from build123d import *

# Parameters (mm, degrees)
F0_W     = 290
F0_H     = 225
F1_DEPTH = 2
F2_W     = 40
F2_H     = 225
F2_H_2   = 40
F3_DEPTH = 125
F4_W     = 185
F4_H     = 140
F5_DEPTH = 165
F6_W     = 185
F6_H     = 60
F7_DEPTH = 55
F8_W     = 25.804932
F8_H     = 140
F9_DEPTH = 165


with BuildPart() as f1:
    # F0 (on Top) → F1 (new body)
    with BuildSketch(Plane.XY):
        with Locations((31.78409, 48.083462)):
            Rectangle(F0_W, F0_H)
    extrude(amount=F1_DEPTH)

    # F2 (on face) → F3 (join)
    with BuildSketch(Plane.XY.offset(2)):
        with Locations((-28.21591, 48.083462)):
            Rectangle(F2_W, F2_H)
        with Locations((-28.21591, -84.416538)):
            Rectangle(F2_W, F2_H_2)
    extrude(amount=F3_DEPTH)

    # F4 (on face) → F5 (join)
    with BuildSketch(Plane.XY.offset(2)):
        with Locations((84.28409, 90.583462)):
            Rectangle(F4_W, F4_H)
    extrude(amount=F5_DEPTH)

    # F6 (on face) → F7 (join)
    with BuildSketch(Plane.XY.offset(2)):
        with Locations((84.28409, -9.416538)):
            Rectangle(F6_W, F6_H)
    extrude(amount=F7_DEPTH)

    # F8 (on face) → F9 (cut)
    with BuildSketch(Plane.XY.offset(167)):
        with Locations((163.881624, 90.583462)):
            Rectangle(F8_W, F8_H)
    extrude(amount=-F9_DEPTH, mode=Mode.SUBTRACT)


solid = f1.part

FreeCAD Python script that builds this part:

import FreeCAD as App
import Part
import Sketcher
from FreeCAD import Vector

doc = App.newDocument("Part")
body = doc.addObject("PartDesign::Body", "Body")

# Sketch on XY plane
sketch1 = doc.addObject("Sketcher::SketchObject", "Sketch")
body.addObject(sketch1)
sketch1.AttachmentSupport = (doc.XY_Plane, [""])
sketch1.MapMode = "FlatFace"
sketch1.addGeometry([
    Part.LineSegment(Vector(-113.21591, 160.583462, 0), Vector(-113.21591, -64.416538, 0)),
    Part.LineSegment(Vector(-113.21591, -64.416538, 0), Vector(176.78409, -64.416538, 0)),
    Part.LineSegment(Vector(176.78409, -64.416538, 0), Vector(176.78409, 160.583462, 0)),
    Part.LineSegment(Vector(176.78409, 160.583462, 0), Vector(-113.21591, 160.583462, 0)),
], False)
sketch1.addConstraint([
    Sketcher.Constraint("Coincident", 0, 2, 1, 1),
    Sketcher.Constraint("Coincident", 1, 2, 2, 1),
    Sketcher.Constraint("Coincident", 2, 2, 3, 1),
    Sketcher.Constraint("Coincident", 3, 2, 0, 1),
    Sketcher.Constraint("Vertical", 0),
    Sketcher.Constraint("Horizontal", 1),
    Sketcher.Constraint("Vertical", 2),
    Sketcher.Constraint("Horizontal", 3),
    Sketcher.Constraint("DistanceX", 1, 1, 1, 2, 290.0),
    Sketcher.Constraint("DistanceY", 0, 2, 0, 1, 225.0),
    Sketcher.Constraint("DistanceX", 0, 2, -1, 1, 113.21591),
    Sketcher.Constraint("DistanceY", 0, 2, -1, 1, 64.416538),
])
pad1 = doc.addObject("PartDesign::Pad", "Pad")
body.addObject(pad1)
pad1.Profile = sketch1
pad1.Length = 2

# Sketch on XY plane
sketch2 = doc.addObject("Sketcher::SketchObject", "Sketch001")
body.addObject(sketch2)
sketch2.AttachmentSupport = (doc.XY_Plane, [""])
sketch2.MapMode = "FlatFace"
sketch2.AttachmentOffset = App.Placement(Vector(0, 0, 2), App.Rotation())
sketch2.addGeometry([
    Part.LineSegment(Vector(-48.21591, 160.583462, 0), Vector(-48.21591, -104.416538, 0)),
    Part.LineSegment(Vector(-48.21591, -104.416538, 0), Vector(-8.21591, -104.416538, 0)),
    Part.LineSegment(Vector(-8.21591, -104.416538, 0), Vector(-8.21591, 160.583462, 0)),
    Part.LineSegment(Vector(-8.21591, 160.583462, 0), Vector(-48.21591, 160.583462, 0)),
], False)
sketch2.addConstraint([
    Sketcher.Constraint("Coincident", 0, 2, 1, 1),
    Sketcher.Constraint("Coincident", 1, 2, 2, 1),
    Sketcher.Constraint("Coincident", 2, 2, 3, 1),
    Sketcher.Constraint("Coincident", 3, 2, 0, 1),
    Sketcher.Constraint("Vertical", 0),
    Sketcher.Constraint("Horizontal", 1),
    Sketcher.Constraint("Vertical", 2),
    Sketcher.Constraint("Horizontal", 3),
    Sketcher.Constraint("DistanceX", 1, 1, 1, 2, 40.0),
    Sketcher.Constraint("DistanceY", 0, 2, 0, 1, 265.0),
    Sketcher.Constraint("DistanceX", 0, 2, -1, 1, 48.21591),
    Sketcher.Constraint("DistanceY", 0, 2, -1, 1, 104.416538),
])
pad2 = doc.addObject("PartDesign::Pad", "Pad001")
body.addObject(pad2)
pad2.Profile = sketch2
pad2.Length = 125

# Sketch on XY plane
sketch3 = doc.addObject("Sketcher::SketchObject", "Sketch002")
body.addObject(sketch3)
sketch3.AttachmentSupport = (doc.XY_Plane, [""])
sketch3.MapMode = "FlatFace"
sketch3.AttachmentOffset = App.Placement(Vector(0, 0, 2), App.Rotation())
sketch3.addGeometry([
    Part.LineSegment(Vector(-8.21591, 160.583462, 0), Vector(-8.21591, 20.583462, 0)),
    Part.LineSegment(Vector(-8.21591, 20.583462, 0), Vector(176.78409, 20.583462, 0)),
    Part.LineSegment(Vector(176.78409, 20.583462, 0), Vector(176.78409, 160.583462, 0)),
    Part.LineSegment(Vector(176.78409, 160.583462, 0), Vector(-8.21591, 160.583462, 0)),
], False)
sketch3.addConstraint([
    Sketcher.Constraint("Coincident", 0, 2, 1, 1),
    Sketcher.Constraint("Coincident", 1, 2, 2, 1),
    Sketcher.Constraint("Coincident", 2, 2, 3, 1),
    Sketcher.Constraint("Coincident", 3, 2, 0, 1),
    Sketcher.Constraint("Vertical", 0),
    Sketcher.Constraint("Horizontal", 1),
    Sketcher.Constraint("Vertical", 2),
    Sketcher.Constraint("Horizontal", 3),
    Sketcher.Constraint("DistanceX", 1, 1, 1, 2, 185.0),
    Sketcher.Constraint("DistanceY", 0, 2, 0, 1, 140.0),
    Sketcher.Constraint("DistanceX", 0, 2, -1, 1, 8.21591),
    Sketcher.Constraint("DistanceY", -1, 1, 2, 2, 160.583462),
])
pad3 = doc.addObject("PartDesign::Pad", "Pad002")
body.addObject(pad3)
pad3.Profile = sketch3
pad3.Length = 165

# Sketch on XY plane
sketch4 = doc.addObject("Sketcher::SketchObject", "Sketch003")
body.addObject(sketch4)
sketch4.AttachmentSupport = (doc.XY_Plane, [""])
sketch4.MapMode = "FlatFace"
sketch4.AttachmentOffset = App.Placement(Vector(0, 0, 2), App.Rotation())
sketch4.addGeometry([
    Part.LineSegment(Vector(-8.21591, 20.583462, 0), Vector(-8.21591, -39.416538, 0)),
    Part.LineSegment(Vector(-8.21591, -39.416538, 0), Vector(176.78409, -39.416538, 0)),
    Part.LineSegment(Vector(176.78409, -39.416538, 0), Vector(176.78409, 20.583462, 0)),
    Part.LineSegment(Vector(176.78409, 20.583462, 0), Vector(-8.21591, 20.583462, 0)),
], False)
sketch4.addConstraint([
    Sketcher.Constraint("Coincident", 0, 2, 1, 1),
    Sketcher.Constraint("Coincident", 1, 2, 2, 1),
    Sketcher.Constraint("Coincident", 2, 2, 3, 1),
    Sketcher.Constraint("Coincident", 3, 2, 0, 1),
    Sketcher.Constraint("Vertical", 0),
    Sketcher.Constraint("Horizontal", 1),
    Sketcher.Constraint("Vertical", 2),
    Sketcher.Constraint("Horizontal", 3),
    Sketcher.Constraint("DistanceX", 1, 1, 1, 2, 185.0),
    Sketcher.Constraint("DistanceY", 0, 2, 0, 1, 60.0),
    Sketcher.Constraint("DistanceX", 0, 2, -1, 1, 8.21591),
    Sketcher.Constraint("DistanceY", 0, 2, -1, 1, 39.416538),
])
pad4 = doc.addObject("PartDesign::Pad", "Pad003")
body.addObject(pad4)
pad4.Profile = sketch4
pad4.Length = 55

# Sketch on XY plane
sketch5 = doc.addObject("Sketcher::SketchObject", "Sketch004")
body.addObject(sketch5)
sketch5.AttachmentSupport = (doc.XY_Plane, [""])
sketch5.MapMode = "FlatFace"
sketch5.AttachmentOffset = App.Placement(Vector(0, 0, 167), App.Rotation())
sketch5.addGeometry([
    Part.LineSegment(Vector(150.979158, 160.583462, 0), Vector(150.979158, 20.583462, 0)),
    Part.LineSegment(Vector(150.979158, 20.583462, 0), Vector(176.78409, 20.583462, 0)),
    Part.LineSegment(Vector(176.78409, 20.583462, 0), Vector(176.78409, 160.583462, 0)),
    Part.LineSegment(Vector(176.78409, 160.583462, 0), Vector(150.979158, 160.583462, 0)),
], False)
sketch5.addConstraint([
    Sketcher.Constraint("Coincident", 0, 2, 1, 1),
    Sketcher.Constraint("Coincident", 1, 2, 2, 1),
    Sketcher.Constraint("Coincident", 2, 2, 3, 1),
    Sketcher.Constraint("Coincident", 3, 2, 0, 1),
    Sketcher.Constraint("Vertical", 0),
    Sketcher.Constraint("Horizontal", 1),
    Sketcher.Constraint("Vertical", 2),
    Sketcher.Constraint("Horizontal", 3),
    Sketcher.Constraint("DistanceY", 0, 2, 0, 1, 140.0),
    Sketcher.Constraint("DistanceX", 1, 1, 1, 2, 25.804932),
    Sketcher.Constraint("DistanceX", -1, 1, 0, 2, 150.979158),
    Sketcher.Constraint("DistanceY", -1, 1, 2, 2, 160.583462),
])
pocket1 = doc.addObject("PartDesign::Pocket", "Pocket")
body.addObject(pocket1)
pocket1.Profile = sketch5
pocket1.Length = 165

doc.recompute()
